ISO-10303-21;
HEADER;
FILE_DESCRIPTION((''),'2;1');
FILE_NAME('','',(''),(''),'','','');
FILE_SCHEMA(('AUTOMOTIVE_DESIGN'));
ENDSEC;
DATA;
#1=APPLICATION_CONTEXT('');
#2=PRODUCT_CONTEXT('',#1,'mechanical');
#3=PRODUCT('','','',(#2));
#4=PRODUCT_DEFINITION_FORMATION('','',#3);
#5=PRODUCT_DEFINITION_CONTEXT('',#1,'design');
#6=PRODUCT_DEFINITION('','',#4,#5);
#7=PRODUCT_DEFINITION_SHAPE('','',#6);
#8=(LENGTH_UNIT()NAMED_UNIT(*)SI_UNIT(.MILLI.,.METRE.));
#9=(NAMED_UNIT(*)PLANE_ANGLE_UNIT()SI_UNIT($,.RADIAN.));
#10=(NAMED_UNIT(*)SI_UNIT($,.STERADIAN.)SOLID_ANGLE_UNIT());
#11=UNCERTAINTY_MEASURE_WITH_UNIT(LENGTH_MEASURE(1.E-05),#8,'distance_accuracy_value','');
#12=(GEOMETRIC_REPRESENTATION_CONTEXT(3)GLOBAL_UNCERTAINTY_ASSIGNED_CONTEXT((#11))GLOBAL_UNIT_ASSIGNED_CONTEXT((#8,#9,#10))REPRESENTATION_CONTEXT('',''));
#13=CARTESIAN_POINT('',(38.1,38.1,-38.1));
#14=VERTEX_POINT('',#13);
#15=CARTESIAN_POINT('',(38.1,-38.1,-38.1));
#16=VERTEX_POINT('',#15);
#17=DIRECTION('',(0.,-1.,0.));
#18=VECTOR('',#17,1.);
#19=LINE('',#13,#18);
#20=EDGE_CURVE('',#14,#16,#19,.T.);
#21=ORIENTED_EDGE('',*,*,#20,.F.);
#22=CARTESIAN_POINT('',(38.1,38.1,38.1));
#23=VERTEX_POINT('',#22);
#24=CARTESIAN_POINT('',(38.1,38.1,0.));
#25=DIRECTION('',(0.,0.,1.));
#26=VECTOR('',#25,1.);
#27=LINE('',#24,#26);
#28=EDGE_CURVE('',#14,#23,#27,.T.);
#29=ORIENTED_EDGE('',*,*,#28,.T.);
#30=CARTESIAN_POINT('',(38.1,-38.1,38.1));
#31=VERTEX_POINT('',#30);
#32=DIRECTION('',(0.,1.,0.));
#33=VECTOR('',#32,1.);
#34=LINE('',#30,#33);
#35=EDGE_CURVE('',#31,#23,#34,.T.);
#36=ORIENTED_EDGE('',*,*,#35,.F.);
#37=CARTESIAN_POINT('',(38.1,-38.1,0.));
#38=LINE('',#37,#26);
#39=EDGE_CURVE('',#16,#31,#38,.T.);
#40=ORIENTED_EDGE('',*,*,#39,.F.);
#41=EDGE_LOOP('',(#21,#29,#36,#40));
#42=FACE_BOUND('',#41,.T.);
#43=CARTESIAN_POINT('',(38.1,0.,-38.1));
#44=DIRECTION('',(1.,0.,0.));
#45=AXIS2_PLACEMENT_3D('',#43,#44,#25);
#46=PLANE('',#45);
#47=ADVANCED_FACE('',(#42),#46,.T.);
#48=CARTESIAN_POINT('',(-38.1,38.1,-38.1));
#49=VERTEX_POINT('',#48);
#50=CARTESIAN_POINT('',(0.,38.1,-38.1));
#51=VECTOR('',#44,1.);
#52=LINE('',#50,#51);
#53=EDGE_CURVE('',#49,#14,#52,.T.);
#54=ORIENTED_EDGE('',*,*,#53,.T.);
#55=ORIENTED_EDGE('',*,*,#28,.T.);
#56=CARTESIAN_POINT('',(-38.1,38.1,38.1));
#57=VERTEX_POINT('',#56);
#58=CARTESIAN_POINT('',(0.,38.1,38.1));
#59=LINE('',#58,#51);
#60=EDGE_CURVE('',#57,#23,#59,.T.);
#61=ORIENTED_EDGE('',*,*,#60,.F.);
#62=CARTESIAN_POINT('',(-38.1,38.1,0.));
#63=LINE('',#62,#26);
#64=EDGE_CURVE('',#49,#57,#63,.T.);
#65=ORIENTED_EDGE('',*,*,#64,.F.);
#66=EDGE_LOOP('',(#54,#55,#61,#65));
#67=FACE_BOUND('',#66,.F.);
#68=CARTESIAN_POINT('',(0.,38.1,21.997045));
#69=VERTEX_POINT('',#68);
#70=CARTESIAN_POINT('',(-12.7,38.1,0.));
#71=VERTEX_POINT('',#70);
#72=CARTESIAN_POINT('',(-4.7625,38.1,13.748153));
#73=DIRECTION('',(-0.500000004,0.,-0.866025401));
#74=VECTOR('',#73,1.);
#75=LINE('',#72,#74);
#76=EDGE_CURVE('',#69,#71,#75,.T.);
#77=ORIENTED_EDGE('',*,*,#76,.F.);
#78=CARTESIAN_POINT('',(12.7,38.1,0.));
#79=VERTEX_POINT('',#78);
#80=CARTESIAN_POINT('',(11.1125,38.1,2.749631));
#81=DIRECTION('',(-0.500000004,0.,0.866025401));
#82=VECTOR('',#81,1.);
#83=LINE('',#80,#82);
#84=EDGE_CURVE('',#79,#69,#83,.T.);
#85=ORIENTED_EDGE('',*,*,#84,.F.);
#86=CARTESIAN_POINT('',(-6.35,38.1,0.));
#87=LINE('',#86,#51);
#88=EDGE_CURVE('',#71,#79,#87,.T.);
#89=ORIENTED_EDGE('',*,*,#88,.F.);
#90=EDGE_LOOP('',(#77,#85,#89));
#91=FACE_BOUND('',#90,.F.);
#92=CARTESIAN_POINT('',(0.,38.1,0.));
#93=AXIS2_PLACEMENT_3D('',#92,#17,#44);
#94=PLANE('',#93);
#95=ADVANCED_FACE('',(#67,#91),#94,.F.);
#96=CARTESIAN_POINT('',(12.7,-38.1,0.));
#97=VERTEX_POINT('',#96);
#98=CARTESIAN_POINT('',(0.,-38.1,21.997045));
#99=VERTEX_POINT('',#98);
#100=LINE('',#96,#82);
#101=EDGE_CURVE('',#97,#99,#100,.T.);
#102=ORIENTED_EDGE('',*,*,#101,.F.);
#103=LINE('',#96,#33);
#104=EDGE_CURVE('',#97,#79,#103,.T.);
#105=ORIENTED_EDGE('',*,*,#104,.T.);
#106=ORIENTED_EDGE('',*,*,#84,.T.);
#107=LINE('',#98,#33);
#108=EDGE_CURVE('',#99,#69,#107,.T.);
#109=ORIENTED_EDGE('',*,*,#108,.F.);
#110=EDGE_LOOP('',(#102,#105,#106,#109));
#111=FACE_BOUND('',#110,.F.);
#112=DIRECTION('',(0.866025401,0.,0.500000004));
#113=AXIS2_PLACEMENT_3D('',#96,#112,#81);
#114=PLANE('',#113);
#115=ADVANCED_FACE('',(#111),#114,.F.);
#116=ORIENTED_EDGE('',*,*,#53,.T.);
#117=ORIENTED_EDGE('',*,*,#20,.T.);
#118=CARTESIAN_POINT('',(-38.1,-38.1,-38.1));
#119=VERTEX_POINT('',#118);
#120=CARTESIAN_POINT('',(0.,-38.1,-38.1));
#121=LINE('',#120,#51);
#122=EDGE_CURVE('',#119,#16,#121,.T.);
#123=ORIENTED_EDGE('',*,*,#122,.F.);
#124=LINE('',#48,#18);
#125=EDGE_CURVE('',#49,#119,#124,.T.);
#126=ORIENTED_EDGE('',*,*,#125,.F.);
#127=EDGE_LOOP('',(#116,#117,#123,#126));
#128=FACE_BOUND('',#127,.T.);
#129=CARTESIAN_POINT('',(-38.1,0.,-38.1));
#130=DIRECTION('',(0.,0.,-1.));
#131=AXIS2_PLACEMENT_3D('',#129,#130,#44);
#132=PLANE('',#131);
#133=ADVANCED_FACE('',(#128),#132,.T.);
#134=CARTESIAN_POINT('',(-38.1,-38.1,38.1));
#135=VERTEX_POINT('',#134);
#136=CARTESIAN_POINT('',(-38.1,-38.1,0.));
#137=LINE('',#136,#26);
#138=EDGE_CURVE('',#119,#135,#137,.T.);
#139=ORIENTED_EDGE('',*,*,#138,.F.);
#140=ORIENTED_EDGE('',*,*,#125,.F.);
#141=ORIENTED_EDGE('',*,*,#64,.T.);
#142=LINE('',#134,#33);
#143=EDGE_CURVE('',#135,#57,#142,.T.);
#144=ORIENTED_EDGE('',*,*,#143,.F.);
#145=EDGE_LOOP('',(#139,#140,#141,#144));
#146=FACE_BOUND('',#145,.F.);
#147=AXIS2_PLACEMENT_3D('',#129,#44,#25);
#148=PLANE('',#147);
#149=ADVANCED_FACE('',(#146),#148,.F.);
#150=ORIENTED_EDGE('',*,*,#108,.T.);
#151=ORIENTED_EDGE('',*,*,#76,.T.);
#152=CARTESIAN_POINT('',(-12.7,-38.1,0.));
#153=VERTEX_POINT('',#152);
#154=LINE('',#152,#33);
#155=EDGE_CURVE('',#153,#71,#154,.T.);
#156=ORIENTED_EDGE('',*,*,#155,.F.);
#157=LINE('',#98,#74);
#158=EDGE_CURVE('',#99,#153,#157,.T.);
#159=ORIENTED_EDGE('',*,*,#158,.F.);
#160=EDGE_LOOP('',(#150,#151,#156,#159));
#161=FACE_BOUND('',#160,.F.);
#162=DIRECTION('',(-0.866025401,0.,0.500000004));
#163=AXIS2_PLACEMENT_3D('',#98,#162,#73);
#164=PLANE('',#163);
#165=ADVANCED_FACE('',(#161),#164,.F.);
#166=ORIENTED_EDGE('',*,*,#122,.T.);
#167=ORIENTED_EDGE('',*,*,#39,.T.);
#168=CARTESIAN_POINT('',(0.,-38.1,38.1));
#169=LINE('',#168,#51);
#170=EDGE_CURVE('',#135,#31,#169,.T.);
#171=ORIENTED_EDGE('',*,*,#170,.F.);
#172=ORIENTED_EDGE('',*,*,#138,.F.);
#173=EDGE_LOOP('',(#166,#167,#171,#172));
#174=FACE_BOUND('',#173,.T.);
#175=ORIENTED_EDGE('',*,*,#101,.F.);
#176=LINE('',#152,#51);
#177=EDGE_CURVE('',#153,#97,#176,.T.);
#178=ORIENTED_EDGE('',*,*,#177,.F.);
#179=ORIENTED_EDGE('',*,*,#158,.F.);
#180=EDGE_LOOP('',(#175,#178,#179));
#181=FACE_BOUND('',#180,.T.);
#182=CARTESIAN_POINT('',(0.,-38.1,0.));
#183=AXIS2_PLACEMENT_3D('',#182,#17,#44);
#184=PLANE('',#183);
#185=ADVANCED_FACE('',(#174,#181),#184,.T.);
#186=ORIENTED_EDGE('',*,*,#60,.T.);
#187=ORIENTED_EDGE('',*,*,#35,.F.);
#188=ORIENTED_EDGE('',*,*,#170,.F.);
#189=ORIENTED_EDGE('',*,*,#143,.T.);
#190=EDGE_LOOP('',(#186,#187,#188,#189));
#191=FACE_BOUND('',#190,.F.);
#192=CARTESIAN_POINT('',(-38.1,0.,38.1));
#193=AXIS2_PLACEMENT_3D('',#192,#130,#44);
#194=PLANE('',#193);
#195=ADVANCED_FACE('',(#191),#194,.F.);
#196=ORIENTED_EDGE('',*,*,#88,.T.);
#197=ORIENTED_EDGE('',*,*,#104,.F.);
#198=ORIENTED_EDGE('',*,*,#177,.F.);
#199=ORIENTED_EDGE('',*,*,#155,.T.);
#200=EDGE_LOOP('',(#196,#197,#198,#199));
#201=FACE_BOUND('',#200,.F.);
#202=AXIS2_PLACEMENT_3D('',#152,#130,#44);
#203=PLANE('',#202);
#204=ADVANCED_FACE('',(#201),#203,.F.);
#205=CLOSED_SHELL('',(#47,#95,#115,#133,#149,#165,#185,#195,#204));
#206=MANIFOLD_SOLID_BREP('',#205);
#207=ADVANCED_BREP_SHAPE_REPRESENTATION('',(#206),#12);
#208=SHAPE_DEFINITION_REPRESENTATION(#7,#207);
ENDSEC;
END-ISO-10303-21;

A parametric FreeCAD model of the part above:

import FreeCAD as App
import Part
import Sketcher
from FreeCAD import Vector
Q = App.Units.Quantity

doc = App.newDocument("Part")
params = doc.addObject("Spreadsheet::Sheet", "Params")
for row, (alias, value) in enumerate([
    ("sketch1_width", "3 in"),
    ("pad1_length", "3 in"),
    ("sketch2_width", "1 in"),
    ("sketch2_length", "1 in"),
], start=1):
    params.set(f"A{row}", alias)
    params.set(f"B{row}", "=" + value)
    params.setAlias(f"B{row}", alias)

body = doc.addObject("PartDesign::Body", "Body")

# Sketch on XZ plane
sketch1 = body.newObject("Sketcher::SketchObject", "Sketch")
sketch1.AttachmentSupport = (doc.getObject("XZ_Plane"), [""])
sketch1.MapMode = "FlatFace"
sketch1.addGeometry([
    Part.LineSegment(Vector(-38.1, 38.1, 0), Vector(-38.1, -38.1, 0)),
    Part.LineSegment(Vector(-38.1, -38.1, 0), Vector(38.1, -38.1, 0)),
    Part.LineSegment(Vector(38.1, -38.1, 0), Vector(38.1, 38.1, 0)),
    Part.LineSegment(Vector(38.1, 38.1, 0), Vector(-38.1, 38.1, 0)),
], False)
sketch1.addConstraint([
    Sketcher.Constraint("Coincident", 0, 2, 1, 1),
    Sketcher.Constraint("Coincident", 1, 2, 2, 1),
    Sketcher.Constraint("Coincident", 2, 2, 3, 1),
    Sketcher.Constraint("Coincident", 3, 2, 0, 1),
    Sketcher.Constraint("Vertical", 0),
    Sketcher.Constraint("Horizontal", 1),
    Sketcher.Constraint("Vertical", 2),
    Sketcher.Constraint("Horizontal", 3),
    Sketcher.Constraint("Symmetric", 0, 2, 2, 2, -1, 1),
    Sketcher.Constraint("Equal", 3, 0),
    Sketcher.Constraint("DistanceX", 1, 1, 1, 2, Q("3 in")),
])
sketch1.setExpression("Constraints[10]", "Params.sketch1_width")
pad1 = body.newObject("PartDesign::Pad", "Pad")
pad1.Profile = sketch1
pad1.setExpression("Length", "Params.pad1_length")
pad1.Midplane = True

# Sketch on XZ plane
sketch2 = body.newObject("Sketcher::SketchObject", "Sketch001")
sketch2.AttachmentSupport = (doc.getObject("XZ_Plane"), [""])
sketch2.MapMode = "FlatFace"
sketch2.AttachmentOffset = App.Placement(Vector(0, 0, 1.5 * 25.4), App.Rotation())
sketch2.addGeometry([
    Part.LineSegment(Vector(0, 21.997045, 0), Vector(-12.7, 0, 0)),
    Part.LineSegment(Vector(-12.7, 0, 0), Vector(12.7, 0, 0)),
    Part.LineSegment(Vector(12.7, 0, 0), Vector(0, 21.997045, 0)),
], False)
sketch2.addConstraint([
    Sketcher.Constraint("Coincident", 0, 2, 1, 1),
    Sketcher.Constraint("Coincident", 1, 2, 2, 1),
    Sketcher.Constraint("Coincident", 2, 2, 0, 1),
    Sketcher.Constraint("Horizontal", 1),
    Sketcher.Constraint("Symmetric", 0, 2, 1, 2, -1, 1),
    Sketcher.Constraint("PointOnObject", 2, 2, -2),
    Sketcher.Constraint("DistanceX", 1, 1, 1, 2, Q("1 in")),
    Sketcher.Constraint("Distance", 0, Q("1 in")),
])
sketch2.setExpression("Constraints[6]", "Params.sketch2_width")
sketch2.setExpression("Constraints[7]", "Params.sketch2_length")
pocket1 = body.newObject("PartDesign::Pocket", "Pocket")
pocket1.Profile = sketch2
pocket1.Type = "ThroughAll"

doc.recompute()
